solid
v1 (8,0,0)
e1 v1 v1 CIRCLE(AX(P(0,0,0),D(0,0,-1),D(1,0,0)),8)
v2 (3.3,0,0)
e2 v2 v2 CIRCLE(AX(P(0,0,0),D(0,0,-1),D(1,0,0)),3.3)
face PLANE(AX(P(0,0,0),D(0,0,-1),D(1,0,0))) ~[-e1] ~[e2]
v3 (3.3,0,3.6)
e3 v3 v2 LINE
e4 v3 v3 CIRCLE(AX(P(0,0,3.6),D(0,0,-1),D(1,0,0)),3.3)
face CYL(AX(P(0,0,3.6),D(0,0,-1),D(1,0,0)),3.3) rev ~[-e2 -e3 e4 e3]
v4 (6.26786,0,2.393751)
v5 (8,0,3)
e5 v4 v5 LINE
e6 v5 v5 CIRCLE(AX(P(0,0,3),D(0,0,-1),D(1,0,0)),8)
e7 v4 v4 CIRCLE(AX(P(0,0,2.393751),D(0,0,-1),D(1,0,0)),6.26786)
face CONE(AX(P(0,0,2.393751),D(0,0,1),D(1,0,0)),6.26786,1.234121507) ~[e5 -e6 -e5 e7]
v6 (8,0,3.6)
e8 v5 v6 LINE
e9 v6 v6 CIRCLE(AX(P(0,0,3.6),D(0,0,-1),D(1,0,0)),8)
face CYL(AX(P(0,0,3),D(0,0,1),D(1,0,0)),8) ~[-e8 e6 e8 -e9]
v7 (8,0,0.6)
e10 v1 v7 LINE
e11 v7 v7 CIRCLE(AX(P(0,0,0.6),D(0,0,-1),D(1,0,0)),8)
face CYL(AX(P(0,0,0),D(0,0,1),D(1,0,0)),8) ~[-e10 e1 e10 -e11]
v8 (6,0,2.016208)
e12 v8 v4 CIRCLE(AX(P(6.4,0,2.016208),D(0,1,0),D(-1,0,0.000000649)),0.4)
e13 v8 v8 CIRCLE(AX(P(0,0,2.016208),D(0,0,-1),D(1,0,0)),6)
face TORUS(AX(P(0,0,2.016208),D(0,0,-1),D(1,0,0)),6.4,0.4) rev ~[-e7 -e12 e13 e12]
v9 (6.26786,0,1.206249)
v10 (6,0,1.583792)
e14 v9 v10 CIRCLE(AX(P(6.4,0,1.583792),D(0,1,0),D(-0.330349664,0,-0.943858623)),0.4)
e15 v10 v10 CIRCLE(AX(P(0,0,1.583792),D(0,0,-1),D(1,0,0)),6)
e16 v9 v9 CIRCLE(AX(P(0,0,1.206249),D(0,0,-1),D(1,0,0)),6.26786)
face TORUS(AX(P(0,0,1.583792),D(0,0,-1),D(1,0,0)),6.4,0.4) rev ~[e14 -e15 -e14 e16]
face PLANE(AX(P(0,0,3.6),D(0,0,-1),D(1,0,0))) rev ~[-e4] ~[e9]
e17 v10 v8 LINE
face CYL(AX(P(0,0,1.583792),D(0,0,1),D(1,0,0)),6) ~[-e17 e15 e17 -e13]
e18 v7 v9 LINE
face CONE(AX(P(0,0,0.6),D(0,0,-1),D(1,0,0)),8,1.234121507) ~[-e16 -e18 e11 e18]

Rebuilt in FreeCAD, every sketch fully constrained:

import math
import FreeCAD as App
import Part
import Sketcher
from FreeCAD import Vector

doc = App.newDocument("Part")
body = doc.addObject("PartDesign::Body", "Body")

sketch1 = doc.addObject("Sketcher::SketchObject", "Sketch")
body.addObject(sketch1)
sketch1.AttachmentSupport = (doc.XZ_Plane, [""])
sketch1.MapMode = "FlatFace"
sketch1.addGeometry([
    Part.LineSegment(Vector(3.3, 3.6, 0), Vector(3.3, 0, 0)),
    Part.LineSegment(Vector(3.3, 0, 0), Vector(8, 0, 0)),
    Part.LineSegment(Vector(8, 0, 0), Vector(8, 0.6, 0)),
    Part.LineSegment(Vector(8, 0.6, 0), Vector(6.26786, 1.206249, 0)),
    Part.ArcOfCircle(Part.Circle(Vector(6.4, 1.583792, 0), Vector(0, 0, 1), 0.4), math.radians(-179.999963), math.radians(-109.29)),
    Part.LineSegment(Vector(6, 1.583792, 0), Vector(6, 2.016208, 0)),
    Part.ArcOfCircle(Part.Circle(Vector(6.4, 2.016208, 0), Vector(0, 0, 1), 0.4), math.radians(109.29), math.radians(179.999963)),
    Part.LineSegment(Vector(6.26786, 2.393751, 0), Vector(8, 3, 0)),
    Part.LineSegment(Vector(8, 3, 0), Vector(8, 3.6, 0)),
    Part.LineSegment(Vector(8, 3.6, 0), Vector(3.3, 3.6, 0)),
], False)
sketch1.addConstraint([
    Sketcher.Constraint("Coincident", 0, 2, 1, 1),
    Sketcher.Constraint("Coincident", 1, 2, 2, 1),
    Sketcher.Constraint("Coincident", 2, 2, 3, 1),
    Sketcher.Constraint("Tangent", 3, 2, 4, 2),
    Sketcher.Constraint("Tangent", 4, 1, 5, 1),
    Sketcher.Constraint("Tangent", 5, 2, 6, 2),
    Sketcher.Constraint("Tangent", 6, 1, 7, 1),
    Sketcher.Constraint("Coincident", 7, 2, 8, 1),
    Sketcher.Constraint("Coincident", 8, 2, 9, 1),
    Sketcher.Constraint("Coincident", 9, 2, 0, 1),
    Sketcher.Constraint("Vertical", 0),
    Sketcher.Constraint("Horizontal", 1),
    Sketcher.Constraint("Vertical", 2),
    Sketcher.Constraint("Vertical", 5),
    Sketcher.Constraint("Vertical", 8),
    Sketcher.Constraint("Horizontal", 9),
    Sketcher.Constraint("Equal", 4, 6),
    Sketcher.Constraint("PointOnObject", 0, 2, -1),
    Sketcher.Constraint("Vertical", 3, 2, 6, 1),
    Sketcher.Constraint("Vertical", 2, 2, 7, 2),
    Sketcher.Constraint("Equal", 2, 8),
    Sketcher.Constraint("Radius", 4, 0.4),
    Sketcher.Constraint("DistanceX", 1, 1, 1, 2, 4.7),
    Sketcher.Constraint("DistanceY", 0, 2, 0, 1, 3.6),
    Sketcher.Constraint("DistanceY", 2, 1, 2, 2, 0.6),
    Sketcher.Constraint("DistanceX", -1, 1, 1, 2, 8.0),
    Sketcher.Constraint("DistanceX", -1, 1, 4, 1, 6.0),
    Sketcher.Constraint("DistanceY", 3, 2, 6, 1, 1.187502),
])
revolution = doc.addObject("PartDesign::Revolution", "Revolution")
body.addObject(revolution)
revolution.Profile = sketch1
revolution.ReferenceAxis = (sketch1, ["V_Axis"])
revolution.Angle = 360

doc.recompute()
